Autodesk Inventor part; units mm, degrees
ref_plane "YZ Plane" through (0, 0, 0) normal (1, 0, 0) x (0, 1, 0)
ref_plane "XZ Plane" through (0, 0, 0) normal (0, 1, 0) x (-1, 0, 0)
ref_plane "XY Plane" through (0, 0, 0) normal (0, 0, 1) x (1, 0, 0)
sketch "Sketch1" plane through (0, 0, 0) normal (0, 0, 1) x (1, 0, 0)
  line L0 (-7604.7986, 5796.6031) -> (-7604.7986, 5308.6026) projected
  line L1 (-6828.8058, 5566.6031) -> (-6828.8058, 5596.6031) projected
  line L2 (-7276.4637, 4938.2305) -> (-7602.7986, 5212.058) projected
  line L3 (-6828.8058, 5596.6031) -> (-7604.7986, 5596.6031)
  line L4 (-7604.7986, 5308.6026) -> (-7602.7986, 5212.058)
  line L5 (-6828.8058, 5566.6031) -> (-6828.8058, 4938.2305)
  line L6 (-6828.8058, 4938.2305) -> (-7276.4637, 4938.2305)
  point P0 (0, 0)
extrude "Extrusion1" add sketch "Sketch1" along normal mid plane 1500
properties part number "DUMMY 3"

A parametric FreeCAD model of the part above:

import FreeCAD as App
import Part
import Sketcher

V = App.Vector
Q = App.Units.Quantity

doc = App.newDocument("Part")
body = doc.addObject("PartDesign::Body", "Body")

# Sketch on XY plane
sketch1 = body.newObject("Sketcher::SketchObject", "Sketch")
sketch1.AttachmentSupport = (doc.getObject("XY_Plane"), [""])
sketch1.MapMode = "FlatFace"
sketch1.addGeometry(Part.LineSegment(V(-6829, 5597, 0), V(-7605, 5597, 0)), False)
sketch1.addGeometry(Part.LineSegment(V(-7605, 5597, 0), V(-7605, 5309, 0)), False)
sketch1.addGeometry(Part.LineSegment(V(-7605, 5309, 0), V(-7603, 5212, 0)), False)
sketch1.addGeometry(Part.LineSegment(V(-7603, 5212, 0), V(-7276, 4938, 0)), False)
sketch1.addGeometry(Part.LineSegment(V(-7276, 4938, 0), V(-6829, 4938, 0)), False)
sketch1.addGeometry(Part.LineSegment(V(-6829, 4938, 0), V(-6829, 5597, 0)), False)
sketch1.addConstraint(Sketcher.Constraint("Coincident", 0, 2, 1, 1))
sketch1.addConstraint(Sketcher.Constraint("Coincident", 1, 2, 2, 1))
sketch1.addConstraint(Sketcher.Constraint("Coincident", 2, 2, 3, 1))
sketch1.addConstraint(Sketcher.Constraint("Coincident", 3, 2, 4, 1))
sketch1.addConstraint(Sketcher.Constraint("Coincident", 4, 2, 5, 1))
sketch1.addConstraint(Sketcher.Constraint("Coincident", 5, 2, 0, 1))
sketch1.addConstraint(Sketcher.Constraint("Horizontal", 0))
sketch1.addConstraint(Sketcher.Constraint("Vertical", 1))
sketch1.addConstraint(Sketcher.Constraint("Horizontal", 4))
sketch1.addConstraint(Sketcher.Constraint("Vertical", 5))
sketch1.addConstraint(Sketcher.Constraint("Angle", 3, Q("-40 deg")))
sketch1.addConstraint(Sketcher.Constraint("Distance", 3, Q("426 mm")))
sketch1.addConstraint(Sketcher.Constraint("DistanceX", 1, 2, 2, 2, Q("2 mm")))
sketch1.addConstraint(Sketcher.Constraint("DistanceX", 4, 1, 4, 2, Q("447.658 mm")))
sketch1.addConstraint(Sketcher.Constraint("DistanceY", 1, 2, 1, 1, Q("288.0005 mm")))
sketch1.addConstraint(Sketcher.Constraint("DistanceY", 5, 1, 5, 2, Q("658.3726 mm")))
sketch1.addConstraint(Sketcher.Constraint("DistanceY", -1, 1, 0, 2, Q("5596.603 mm")))
sketch1.addConstraint(Sketcher.Constraint("DistanceX", 0, 2, -1, 1, Q("7604.7986 mm")))
pad1 = body.newObject("PartDesign::Pad", "Pad")
pad1.Profile = sketch1
pad1.Length = 1500
pad1.Midplane = True

doc.recompute()
